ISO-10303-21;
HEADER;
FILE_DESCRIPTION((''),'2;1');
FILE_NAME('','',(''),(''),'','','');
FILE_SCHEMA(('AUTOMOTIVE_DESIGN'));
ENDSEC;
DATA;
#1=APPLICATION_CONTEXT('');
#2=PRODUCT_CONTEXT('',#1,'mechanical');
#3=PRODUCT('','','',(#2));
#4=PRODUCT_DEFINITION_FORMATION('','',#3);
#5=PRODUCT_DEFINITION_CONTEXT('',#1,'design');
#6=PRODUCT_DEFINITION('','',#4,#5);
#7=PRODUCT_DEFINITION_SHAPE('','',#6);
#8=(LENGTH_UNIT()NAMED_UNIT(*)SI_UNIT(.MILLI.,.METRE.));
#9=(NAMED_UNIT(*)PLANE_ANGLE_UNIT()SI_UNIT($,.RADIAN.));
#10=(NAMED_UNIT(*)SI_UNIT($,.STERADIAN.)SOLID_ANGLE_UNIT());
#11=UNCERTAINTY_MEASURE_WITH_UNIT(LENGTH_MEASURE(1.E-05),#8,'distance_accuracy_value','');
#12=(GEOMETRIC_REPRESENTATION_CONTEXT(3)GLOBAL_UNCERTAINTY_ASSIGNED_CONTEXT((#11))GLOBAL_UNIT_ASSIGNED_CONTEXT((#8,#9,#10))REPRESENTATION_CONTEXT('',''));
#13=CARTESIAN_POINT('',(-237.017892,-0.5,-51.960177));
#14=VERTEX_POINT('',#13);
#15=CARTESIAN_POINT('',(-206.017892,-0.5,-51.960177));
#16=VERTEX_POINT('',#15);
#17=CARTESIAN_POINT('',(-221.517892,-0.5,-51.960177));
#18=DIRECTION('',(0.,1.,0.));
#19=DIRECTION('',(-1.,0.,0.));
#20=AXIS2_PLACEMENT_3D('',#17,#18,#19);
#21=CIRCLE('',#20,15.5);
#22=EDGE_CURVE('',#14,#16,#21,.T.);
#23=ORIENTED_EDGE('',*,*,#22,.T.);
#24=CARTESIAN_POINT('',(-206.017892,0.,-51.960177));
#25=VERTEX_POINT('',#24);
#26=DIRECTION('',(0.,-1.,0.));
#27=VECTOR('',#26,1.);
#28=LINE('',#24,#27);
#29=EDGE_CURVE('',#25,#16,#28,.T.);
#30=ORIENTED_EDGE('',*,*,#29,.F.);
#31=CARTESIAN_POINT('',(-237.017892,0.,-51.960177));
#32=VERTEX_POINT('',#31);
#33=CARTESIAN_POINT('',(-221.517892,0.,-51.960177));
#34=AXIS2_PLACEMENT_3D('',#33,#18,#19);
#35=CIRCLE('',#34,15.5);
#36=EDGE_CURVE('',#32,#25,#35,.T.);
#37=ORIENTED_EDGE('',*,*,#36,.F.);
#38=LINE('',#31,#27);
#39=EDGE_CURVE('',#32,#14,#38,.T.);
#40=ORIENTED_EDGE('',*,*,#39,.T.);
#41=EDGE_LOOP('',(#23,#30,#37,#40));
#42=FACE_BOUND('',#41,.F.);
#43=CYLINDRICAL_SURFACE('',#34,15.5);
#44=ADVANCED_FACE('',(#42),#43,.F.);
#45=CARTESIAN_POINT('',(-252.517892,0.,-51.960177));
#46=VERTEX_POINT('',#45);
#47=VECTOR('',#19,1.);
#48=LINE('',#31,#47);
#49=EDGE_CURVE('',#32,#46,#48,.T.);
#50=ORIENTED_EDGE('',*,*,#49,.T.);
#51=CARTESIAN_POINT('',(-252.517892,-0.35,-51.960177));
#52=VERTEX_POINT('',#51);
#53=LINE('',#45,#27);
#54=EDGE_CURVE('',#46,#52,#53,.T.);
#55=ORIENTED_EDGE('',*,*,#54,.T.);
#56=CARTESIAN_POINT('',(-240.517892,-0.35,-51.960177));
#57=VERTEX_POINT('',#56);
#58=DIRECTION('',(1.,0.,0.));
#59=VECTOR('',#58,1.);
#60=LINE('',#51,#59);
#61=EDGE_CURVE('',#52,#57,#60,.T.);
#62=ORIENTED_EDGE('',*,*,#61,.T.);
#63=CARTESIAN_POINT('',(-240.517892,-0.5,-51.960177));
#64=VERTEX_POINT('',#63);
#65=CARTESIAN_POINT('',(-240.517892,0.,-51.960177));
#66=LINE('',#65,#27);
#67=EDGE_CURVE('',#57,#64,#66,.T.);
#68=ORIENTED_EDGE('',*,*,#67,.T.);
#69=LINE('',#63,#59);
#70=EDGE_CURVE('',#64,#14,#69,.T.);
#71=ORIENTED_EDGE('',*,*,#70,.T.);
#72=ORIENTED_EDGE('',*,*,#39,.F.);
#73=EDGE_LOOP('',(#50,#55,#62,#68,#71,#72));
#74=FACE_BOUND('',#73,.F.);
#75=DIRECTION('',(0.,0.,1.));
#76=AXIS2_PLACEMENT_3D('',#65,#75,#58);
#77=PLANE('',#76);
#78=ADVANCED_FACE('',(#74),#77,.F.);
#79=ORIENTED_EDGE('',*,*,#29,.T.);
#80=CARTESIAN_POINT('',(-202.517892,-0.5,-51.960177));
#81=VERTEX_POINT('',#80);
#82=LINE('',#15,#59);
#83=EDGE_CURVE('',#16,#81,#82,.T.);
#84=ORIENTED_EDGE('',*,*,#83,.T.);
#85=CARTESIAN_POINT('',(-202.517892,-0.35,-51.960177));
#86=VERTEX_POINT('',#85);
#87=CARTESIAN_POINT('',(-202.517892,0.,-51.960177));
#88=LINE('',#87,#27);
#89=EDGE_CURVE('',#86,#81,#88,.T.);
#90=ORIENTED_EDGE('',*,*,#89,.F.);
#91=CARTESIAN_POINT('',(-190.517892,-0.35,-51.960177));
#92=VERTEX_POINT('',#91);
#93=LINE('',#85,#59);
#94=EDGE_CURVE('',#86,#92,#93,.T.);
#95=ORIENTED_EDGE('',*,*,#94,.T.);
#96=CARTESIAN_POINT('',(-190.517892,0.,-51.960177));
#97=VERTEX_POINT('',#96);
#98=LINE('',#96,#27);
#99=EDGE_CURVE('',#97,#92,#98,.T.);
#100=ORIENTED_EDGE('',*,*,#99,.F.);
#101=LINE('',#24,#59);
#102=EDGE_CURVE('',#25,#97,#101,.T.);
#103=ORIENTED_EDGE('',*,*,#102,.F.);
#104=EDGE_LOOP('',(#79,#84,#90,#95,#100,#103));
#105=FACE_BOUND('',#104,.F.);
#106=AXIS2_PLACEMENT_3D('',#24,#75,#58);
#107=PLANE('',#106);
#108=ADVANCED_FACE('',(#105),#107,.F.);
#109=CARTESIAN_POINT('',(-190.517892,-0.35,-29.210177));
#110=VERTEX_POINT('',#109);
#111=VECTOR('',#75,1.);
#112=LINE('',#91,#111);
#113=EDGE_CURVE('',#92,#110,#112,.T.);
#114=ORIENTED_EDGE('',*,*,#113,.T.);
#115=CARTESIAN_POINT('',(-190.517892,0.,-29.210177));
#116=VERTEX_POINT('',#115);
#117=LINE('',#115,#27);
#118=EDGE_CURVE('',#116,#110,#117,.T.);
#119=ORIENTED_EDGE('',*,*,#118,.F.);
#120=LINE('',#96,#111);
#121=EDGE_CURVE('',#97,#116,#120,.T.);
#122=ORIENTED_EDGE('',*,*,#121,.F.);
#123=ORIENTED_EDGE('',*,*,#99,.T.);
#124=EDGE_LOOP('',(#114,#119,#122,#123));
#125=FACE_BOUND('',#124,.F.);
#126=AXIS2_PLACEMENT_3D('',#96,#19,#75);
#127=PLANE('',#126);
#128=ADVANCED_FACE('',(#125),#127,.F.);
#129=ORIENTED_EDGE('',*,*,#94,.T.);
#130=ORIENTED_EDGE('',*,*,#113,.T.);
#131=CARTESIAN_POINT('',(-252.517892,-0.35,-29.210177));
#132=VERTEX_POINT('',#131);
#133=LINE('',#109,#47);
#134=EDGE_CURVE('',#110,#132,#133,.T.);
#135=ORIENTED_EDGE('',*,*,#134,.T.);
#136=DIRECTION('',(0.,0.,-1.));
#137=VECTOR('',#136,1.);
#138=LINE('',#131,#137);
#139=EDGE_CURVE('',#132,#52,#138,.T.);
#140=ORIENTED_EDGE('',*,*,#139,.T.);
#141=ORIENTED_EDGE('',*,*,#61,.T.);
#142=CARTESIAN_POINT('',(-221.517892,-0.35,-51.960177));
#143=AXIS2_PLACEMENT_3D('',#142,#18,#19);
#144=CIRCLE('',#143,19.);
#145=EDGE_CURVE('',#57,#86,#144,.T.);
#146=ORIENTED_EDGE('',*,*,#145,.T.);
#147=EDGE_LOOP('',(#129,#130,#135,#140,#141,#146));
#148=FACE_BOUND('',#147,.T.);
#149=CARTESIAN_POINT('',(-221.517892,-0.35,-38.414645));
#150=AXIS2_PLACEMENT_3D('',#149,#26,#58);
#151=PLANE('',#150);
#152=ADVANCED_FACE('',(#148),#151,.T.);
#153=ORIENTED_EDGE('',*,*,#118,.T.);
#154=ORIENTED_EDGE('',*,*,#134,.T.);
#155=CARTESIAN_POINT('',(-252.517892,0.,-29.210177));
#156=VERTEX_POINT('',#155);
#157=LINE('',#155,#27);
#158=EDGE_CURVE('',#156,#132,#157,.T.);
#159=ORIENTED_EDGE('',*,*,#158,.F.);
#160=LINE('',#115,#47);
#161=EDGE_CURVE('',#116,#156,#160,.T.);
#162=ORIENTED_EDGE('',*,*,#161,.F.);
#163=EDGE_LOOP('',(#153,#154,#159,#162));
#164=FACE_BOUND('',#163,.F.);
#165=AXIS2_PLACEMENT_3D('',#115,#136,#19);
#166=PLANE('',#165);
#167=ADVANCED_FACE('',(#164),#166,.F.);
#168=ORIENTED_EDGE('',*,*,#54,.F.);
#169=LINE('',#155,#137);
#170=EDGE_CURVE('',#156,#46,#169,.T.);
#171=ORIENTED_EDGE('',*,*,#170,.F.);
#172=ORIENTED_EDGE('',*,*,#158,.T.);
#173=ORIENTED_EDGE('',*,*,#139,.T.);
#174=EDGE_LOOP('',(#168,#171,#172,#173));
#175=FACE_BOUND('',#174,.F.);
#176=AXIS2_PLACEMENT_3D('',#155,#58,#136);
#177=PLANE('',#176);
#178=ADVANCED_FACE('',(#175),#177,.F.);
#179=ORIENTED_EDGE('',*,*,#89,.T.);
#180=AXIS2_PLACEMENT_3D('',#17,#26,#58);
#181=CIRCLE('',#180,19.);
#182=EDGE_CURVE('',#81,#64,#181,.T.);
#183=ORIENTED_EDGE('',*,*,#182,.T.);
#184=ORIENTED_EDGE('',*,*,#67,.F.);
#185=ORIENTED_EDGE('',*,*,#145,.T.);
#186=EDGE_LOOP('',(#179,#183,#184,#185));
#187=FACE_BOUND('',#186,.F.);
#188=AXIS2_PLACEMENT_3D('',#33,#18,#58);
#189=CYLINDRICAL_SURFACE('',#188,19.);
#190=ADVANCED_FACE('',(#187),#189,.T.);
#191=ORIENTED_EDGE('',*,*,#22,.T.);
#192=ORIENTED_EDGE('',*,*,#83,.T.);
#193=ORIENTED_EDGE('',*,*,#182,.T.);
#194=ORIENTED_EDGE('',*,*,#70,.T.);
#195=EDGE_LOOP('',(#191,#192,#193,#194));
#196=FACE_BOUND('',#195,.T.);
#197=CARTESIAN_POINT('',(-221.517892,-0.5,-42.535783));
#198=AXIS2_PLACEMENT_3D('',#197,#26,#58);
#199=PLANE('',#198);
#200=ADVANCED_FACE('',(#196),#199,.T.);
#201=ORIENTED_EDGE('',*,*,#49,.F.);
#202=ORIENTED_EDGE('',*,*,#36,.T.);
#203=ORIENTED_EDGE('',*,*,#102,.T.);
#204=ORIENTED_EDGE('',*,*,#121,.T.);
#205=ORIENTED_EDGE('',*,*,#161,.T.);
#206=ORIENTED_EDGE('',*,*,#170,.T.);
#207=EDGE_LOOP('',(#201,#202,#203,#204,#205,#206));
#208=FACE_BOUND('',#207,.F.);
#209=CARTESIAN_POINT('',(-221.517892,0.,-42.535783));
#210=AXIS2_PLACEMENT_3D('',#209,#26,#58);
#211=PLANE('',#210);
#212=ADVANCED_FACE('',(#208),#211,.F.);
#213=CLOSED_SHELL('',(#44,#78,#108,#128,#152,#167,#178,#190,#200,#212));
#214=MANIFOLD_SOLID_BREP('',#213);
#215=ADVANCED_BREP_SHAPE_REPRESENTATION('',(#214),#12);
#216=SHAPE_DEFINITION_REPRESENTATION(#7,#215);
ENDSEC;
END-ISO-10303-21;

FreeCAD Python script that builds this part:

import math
import FreeCAD as App
import Part
import Sketcher

V = App.Vector
Q = App.Units.Quantity

doc = App.newDocument("Part")
body = doc.addObject("PartDesign::Body", "Body")

# Sketch on XZ plane
sketch1 = body.newObject("Sketcher::SketchObject", "Sketch")
sketch1.AttachmentSupport = (doc.getObject("XZ_Plane"), [""])
sketch1.MapMode = "FlatFace"
sketch1.addGeometry(Part.LineSegment(V(-191, -52, 0), V(-191, -29, 0)), False)
sketch1.addGeometry(Part.LineSegment(V(-191, -29, 0), V(-253, -29, 0)), False)
sketch1.addGeometry(Part.LineSegment(V(-253, -29, 0), V(-253, -52, 0)), False)
sketch1.addGeometry(Part.LineSegment(V(-253, -52, 0), V(-241, -52, 0)), False)
sketch1.addGeometry(Part.ArcOfCircle(Part.Circle(V(-222, -52, 0), V(0, 0, 1), 19), math.radians(0), math.radians(180)), False)
sketch1.addGeometry(Part.LineSegment(V(-203, -52, 0), V(-191, -52, 0)), False)
sketch1.addConstraint(Sketcher.Constraint("Coincident", 0, 2, 1, 1))
sketch1.addConstraint(Sketcher.Constraint("Coincident", 1, 2, 2, 1))
sketch1.addConstraint(Sketcher.Constraint("Coincident", 2, 2, 3, 1))
sketch1.addConstraint(Sketcher.Constraint("Coincident", 3, 2, 4, 2))
sketch1.addConstraint(Sketcher.Constraint("Coincident", 4, 1, 5, 1))
sketch1.addConstraint(Sketcher.Constraint("Coincident", 5, 2, 0, 1))
sketch1.addConstraint(Sketcher.Constraint("Vertical", 0))
sketch1.addConstraint(Sketcher.Constraint("Horizontal", 1))
sketch1.addConstraint(Sketcher.Constraint("Vertical", 2))
sketch1.addConstraint(Sketcher.Constraint("Horizontal", 3))
sketch1.addConstraint(Sketcher.Constraint("Horizontal", 5))
sketch1.addConstraint(Sketcher.Constraint("Horizontal", 4, 3, 2, 2))
sketch1.addConstraint(Sketcher.Constraint("Horizontal", 3, 2, 4, 1))
sketch1.addConstraint(Sketcher.Constraint("Equal", 3, 5))
sketch1.addConstraint(Sketcher.Constraint("Radius", 4, Q("19 mm")))
sketch1.addConstraint(Sketcher.Constraint("DistanceX", 1, 2, 1, 1, Q("62 mm")))
sketch1.addConstraint(Sketcher.Constraint("DistanceY", 0, 1, 0, 2, Q("22.75 mm")))
sketch1.addConstraint(Sketcher.Constraint("DistanceX", 4, 3, -1, 1, Q("221.517892 mm")))
sketch1.addConstraint(Sketcher.Constraint("DistanceY", 4, 3, -1, 1, Q("51.960177 mm")))
pad1 = body.newObject("PartDesign::Pad", "Pad")
pad1.Profile = sketch1
pad1.Length = 0.35

# Sketch on XZ plane
sketch2 = body.newObject("Sketcher::SketchObject", "Sketch001")
sketch2.AttachmentSupport = (doc.getObject("XZ_Plane"), [""])
sketch2.MapMode = "FlatFace"
sketch2.addGeometry(Part.LineSegment(V(-206, -52, 0), V(-202.5, -52, 0)), False)
sketch2.addGeometry(Part.ArcOfCircle(Part.Circle(V(-221.5, -52, 0), V(0, 0, 1), 19), math.radians(0), math.radians(180)), False)
sketch2.addGeometry(Part.LineSegment(V(-240.5, -52, 0), V(-237, -52, 0)), False)
sketch2.addGeometry(Part.ArcOfCircle(Part.Circle(V(-221.5, -52, 0), V(0, 0, 1), 15.5), math.radians(0), math.radians(180)), False)
sketch2.addConstraint(Sketcher.Constraint("Coincident", 0, 2, 1, 1))
sketch2.addConstraint(Sketcher.Constraint("Coincident", 1, 2, 2, 1))
sketch2.addConstraint(Sketcher.Constraint("Coincident", 2, 2, 3, 2))
sketch2.addConstraint(Sketcher.Constraint("Coincident", 3, 1, 0, 1))
sketch2.addConstraint(Sketcher.Constraint("Horizontal", 0))
sketch2.addConstraint(Sketcher.Constraint("Horizontal", 2))
sketch2.addConstraint(Sketcher.Constraint("Coincident", 3, 3, 1, 3))
sketch2.addConstraint(Sketcher.Constraint("Horizontal", 3, 3, 0, 2))
sketch2.addConstraint(Sketcher.Constraint("Horizontal", 0, 2, 1, 2))
sketch2.addConstraint(Sketcher.Constraint("Radius", 1, Q("19 mm")))
sketch2.addConstraint(Sketcher.Constraint("Radius", 3, Q("15.5 mm")))
sketch2.addConstraint(Sketcher.Constraint("DistanceX", 1, 3, -1, 1, Q("221.517892 mm")))
sketch2.addConstraint(Sketcher.Constraint("DistanceY", 1, 3, -1, 1, Q("51.960177 mm")))
pad2 = body.newObject("PartDesign::Pad", "Pad001")
pad2.Profile = sketch2
pad2.Length = 0.5

doc.recompute()
